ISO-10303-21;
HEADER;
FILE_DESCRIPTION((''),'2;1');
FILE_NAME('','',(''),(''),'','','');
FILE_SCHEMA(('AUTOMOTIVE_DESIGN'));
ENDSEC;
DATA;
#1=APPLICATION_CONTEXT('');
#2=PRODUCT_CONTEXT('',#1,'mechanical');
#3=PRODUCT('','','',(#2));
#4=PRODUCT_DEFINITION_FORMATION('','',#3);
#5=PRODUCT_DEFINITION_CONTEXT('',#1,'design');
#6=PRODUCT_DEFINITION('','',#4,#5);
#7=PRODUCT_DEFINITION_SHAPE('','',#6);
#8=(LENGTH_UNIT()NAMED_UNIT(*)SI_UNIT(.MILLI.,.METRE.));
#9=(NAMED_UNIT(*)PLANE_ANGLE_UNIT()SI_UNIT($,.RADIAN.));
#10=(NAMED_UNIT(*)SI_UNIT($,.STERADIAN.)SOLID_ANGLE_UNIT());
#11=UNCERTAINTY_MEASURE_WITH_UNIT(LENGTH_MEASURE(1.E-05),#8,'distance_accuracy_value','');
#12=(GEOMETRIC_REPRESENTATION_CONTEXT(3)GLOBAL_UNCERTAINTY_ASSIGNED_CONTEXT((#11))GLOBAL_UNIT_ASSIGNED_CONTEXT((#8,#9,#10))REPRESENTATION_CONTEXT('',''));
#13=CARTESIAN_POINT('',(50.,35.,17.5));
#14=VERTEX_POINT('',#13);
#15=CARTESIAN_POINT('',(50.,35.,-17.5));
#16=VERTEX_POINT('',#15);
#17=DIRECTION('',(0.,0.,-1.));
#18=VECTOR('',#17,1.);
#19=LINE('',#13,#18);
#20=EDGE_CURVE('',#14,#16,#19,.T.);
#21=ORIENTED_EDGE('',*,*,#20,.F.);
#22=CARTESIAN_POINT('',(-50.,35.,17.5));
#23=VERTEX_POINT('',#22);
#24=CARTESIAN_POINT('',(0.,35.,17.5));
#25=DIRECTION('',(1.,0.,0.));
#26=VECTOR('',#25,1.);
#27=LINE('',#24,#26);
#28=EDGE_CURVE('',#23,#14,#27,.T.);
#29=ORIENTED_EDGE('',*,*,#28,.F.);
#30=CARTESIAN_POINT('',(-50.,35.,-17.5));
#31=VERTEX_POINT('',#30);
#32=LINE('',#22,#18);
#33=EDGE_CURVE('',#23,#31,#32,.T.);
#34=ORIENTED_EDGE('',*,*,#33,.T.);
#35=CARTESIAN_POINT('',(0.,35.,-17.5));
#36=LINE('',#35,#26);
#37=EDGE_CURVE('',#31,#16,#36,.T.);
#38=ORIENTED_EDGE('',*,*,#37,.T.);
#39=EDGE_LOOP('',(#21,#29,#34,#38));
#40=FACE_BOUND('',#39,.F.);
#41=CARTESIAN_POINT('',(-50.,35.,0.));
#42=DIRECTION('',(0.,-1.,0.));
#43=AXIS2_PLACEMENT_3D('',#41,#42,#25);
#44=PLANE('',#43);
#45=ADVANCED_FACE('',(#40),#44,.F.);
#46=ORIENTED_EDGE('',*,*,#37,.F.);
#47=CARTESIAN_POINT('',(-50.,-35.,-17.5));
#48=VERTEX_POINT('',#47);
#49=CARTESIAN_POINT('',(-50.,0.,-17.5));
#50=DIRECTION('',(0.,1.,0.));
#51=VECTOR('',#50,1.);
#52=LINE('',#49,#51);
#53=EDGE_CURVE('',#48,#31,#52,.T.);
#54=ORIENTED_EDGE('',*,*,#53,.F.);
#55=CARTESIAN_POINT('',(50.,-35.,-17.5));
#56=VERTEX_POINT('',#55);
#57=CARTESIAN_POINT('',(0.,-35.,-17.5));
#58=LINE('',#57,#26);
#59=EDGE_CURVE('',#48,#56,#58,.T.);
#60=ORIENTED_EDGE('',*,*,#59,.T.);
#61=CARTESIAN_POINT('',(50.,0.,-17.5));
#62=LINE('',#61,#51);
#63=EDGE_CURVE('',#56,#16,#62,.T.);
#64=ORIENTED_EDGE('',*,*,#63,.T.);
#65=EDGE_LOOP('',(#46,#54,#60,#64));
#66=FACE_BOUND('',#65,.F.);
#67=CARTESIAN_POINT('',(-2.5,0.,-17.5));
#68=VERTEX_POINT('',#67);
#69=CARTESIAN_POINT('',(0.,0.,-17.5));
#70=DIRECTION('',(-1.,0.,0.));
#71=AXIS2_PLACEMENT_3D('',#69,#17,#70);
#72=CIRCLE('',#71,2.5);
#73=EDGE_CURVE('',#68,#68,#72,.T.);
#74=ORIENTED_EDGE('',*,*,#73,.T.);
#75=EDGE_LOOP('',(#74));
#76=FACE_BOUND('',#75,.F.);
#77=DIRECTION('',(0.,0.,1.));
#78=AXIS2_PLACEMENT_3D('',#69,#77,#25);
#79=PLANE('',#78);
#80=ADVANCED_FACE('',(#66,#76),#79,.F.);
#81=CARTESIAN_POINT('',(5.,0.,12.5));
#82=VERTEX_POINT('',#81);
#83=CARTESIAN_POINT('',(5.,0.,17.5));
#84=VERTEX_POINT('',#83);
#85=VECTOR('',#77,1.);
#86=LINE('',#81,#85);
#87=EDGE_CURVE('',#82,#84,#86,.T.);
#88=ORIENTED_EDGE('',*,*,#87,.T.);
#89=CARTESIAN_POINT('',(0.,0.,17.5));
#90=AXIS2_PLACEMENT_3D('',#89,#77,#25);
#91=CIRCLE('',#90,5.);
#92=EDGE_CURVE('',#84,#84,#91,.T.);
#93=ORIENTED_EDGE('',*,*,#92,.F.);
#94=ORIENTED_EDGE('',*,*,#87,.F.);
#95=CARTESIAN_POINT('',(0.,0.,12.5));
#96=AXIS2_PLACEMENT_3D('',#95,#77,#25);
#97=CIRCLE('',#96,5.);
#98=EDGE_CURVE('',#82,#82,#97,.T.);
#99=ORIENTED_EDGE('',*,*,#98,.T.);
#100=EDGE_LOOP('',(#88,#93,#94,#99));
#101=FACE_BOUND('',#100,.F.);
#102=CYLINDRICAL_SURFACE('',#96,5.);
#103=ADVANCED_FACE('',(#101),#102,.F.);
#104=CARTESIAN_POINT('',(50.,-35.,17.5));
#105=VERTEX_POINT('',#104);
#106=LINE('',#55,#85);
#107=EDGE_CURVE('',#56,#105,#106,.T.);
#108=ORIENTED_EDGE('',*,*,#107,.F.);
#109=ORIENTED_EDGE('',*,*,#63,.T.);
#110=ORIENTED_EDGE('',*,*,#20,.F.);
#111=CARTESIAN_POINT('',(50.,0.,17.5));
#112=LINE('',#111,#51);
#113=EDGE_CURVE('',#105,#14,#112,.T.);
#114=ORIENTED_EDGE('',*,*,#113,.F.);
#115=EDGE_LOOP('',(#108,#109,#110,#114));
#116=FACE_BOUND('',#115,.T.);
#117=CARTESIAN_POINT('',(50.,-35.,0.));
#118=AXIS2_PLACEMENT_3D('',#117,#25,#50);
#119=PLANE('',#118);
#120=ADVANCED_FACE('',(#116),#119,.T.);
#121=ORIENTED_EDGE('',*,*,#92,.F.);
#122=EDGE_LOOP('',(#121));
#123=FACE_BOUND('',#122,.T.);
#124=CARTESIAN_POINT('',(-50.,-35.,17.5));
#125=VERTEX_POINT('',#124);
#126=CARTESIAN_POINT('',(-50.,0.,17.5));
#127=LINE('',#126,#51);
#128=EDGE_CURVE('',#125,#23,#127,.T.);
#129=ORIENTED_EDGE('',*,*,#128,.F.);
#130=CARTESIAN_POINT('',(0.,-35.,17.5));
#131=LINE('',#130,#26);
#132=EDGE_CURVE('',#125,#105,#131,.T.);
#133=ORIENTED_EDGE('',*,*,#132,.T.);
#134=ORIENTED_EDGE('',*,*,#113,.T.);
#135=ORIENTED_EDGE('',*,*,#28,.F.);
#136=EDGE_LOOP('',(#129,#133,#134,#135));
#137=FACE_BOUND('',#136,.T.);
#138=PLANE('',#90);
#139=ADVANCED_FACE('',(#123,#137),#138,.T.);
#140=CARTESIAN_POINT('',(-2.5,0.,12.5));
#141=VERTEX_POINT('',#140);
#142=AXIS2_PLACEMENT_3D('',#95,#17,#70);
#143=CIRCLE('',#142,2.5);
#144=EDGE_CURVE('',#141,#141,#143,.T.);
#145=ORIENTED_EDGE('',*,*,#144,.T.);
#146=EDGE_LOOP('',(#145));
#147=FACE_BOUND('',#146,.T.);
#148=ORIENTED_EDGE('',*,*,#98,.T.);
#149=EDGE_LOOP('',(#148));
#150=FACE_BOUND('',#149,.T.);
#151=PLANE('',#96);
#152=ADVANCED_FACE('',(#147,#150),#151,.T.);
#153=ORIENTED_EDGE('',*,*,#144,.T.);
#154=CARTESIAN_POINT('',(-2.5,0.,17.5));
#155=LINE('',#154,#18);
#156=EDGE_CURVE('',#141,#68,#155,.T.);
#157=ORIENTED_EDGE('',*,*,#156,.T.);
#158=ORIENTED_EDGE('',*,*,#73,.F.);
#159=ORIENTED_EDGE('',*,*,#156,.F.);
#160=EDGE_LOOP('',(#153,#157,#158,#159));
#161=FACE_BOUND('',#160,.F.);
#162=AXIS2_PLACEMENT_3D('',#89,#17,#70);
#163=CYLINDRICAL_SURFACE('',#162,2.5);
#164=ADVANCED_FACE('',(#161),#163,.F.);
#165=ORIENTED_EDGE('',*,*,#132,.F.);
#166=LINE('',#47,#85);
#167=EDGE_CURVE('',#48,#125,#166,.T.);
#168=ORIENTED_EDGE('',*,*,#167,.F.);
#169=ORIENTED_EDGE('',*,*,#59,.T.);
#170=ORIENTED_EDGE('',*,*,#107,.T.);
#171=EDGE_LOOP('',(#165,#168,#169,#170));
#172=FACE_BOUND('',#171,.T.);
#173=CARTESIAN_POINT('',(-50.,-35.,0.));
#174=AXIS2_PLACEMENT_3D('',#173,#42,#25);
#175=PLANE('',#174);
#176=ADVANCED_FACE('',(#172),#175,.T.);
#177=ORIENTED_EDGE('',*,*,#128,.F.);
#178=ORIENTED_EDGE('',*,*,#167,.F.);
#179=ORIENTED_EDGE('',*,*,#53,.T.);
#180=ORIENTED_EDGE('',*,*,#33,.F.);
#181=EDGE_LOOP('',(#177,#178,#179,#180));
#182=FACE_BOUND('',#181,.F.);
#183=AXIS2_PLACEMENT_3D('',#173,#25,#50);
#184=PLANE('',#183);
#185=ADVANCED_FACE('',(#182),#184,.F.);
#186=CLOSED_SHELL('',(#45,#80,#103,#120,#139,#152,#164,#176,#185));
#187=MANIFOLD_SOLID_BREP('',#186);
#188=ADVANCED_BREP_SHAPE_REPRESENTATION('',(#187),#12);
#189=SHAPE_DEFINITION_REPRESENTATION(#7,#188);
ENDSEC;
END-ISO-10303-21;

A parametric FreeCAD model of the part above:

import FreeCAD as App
import Part
import Sketcher

V = App.Vector
Q = App.Units.Quantity


def add_polygon(sketch, points):
    """Adds a closed chain of lines whose ends are joined by coincident constraints."""
    first, n = sketch.GeometryCount, len(points)
    for a, b in zip(points, points[1:] + points[:1]):
        sketch.addGeometry(Part.LineSegment(App.Vector(*a, 0), App.Vector(*b, 0)), False)
    for i in range(n):
        sketch.addConstraint(Sketcher.Constraint("Coincident", first + i, 2, first + (i + 1) % n, 1))

doc = App.newDocument("Part")
params = doc.addObject("Spreadsheet::Sheet", "Params")
for row, (alias, value) in enumerate([
    ("sketch1_width", "100 mm"),
    ("sketch1_height", "70 mm"),
    ("pad1_length", "35 mm"),
    ("sketch2_diameter", "5 mm"),
    ("hole_diameter", "5 mm"),
    ("hole_cbore_diameter", "10 mm"),
    ("hole_cbore_depth", "5 mm"),
], start=1):
    params.set(f"A{row}", alias)
    params.set(f"B{row}", "=" + value)
    params.setAlias(f"B{row}", alias)

body = doc.addObject("PartDesign::Body", "Body")

sketch1 = body.newObject("Sketcher::SketchObject", "Sketch")
sketch1.AttachmentSupport = (doc.getObject("XY_Plane"), [""])
sketch1.MapMode = "FlatFace"
add_polygon(sketch1, [(-50, 35), (-50, -35), (50, -35), (50, 35)])
sketch1.addConstraint([
    Sketcher.Constraint("Vertical", 0),
    Sketcher.Constraint("Horizontal", 1),
    Sketcher.Constraint("Vertical", 2),
    Sketcher.Constraint("Horizontal", 3),
    Sketcher.Constraint("Symmetric", 0, 2, 2, 2, -1, 1),
    Sketcher.Constraint("DistanceX", 1, 1, 1, 2, Q("100 mm")),
    Sketcher.Constraint("DistanceY", 0, 2, 0, 1, Q("70 mm")),
])
sketch1.setExpression("Constraints[9]", "Params.sketch1_width")
sketch1.setExpression("Constraints[10]", "Params.sketch1_height")
pad1 = body.newObject("PartDesign::Pad", "Pad")
pad1.Profile = sketch1
pad1.setExpression("Length", "Params.pad1_length")
pad1.Midplane = True

sketch2 = body.newObject("Sketcher::SketchObject", "Sketch001")
sketch2.AttachmentSupport = (doc.getObject("XY_Plane"), [""])
sketch2.MapMode = "FlatFace"
sketch2.AttachmentOffset = App.Placement(V(0, 0, 17.5), App.Rotation())
sketch2.addGeometry(Part.Circle(V(0, 0, 0), V(0, 0, 1), 2.5), False)
sketch2.addConstraint([
    Sketcher.Constraint("Coincident", 0, 3, -1, 1),
    Sketcher.Constraint("Diameter", 0, Q("5 mm")),
])
sketch2.setExpression("Constraints[1]", "Params.sketch2_diameter")
doc.recompute()
hole = body.newObject("PartDesign::Hole", "Hole")
hole.Profile = sketch2
hole.ThreadType = "None"
hole.setExpression("Diameter", "Params.hole_diameter")
hole.DepthType = "ThroughAll"
hole.HoleCutType = "Counterbore"
hole.setExpression("HoleCutDiameter", "Params.hole_cbore_diameter")
hole.setExpression("HoleCutDepth", "Params.hole_cbore_depth")

doc.recompute()
